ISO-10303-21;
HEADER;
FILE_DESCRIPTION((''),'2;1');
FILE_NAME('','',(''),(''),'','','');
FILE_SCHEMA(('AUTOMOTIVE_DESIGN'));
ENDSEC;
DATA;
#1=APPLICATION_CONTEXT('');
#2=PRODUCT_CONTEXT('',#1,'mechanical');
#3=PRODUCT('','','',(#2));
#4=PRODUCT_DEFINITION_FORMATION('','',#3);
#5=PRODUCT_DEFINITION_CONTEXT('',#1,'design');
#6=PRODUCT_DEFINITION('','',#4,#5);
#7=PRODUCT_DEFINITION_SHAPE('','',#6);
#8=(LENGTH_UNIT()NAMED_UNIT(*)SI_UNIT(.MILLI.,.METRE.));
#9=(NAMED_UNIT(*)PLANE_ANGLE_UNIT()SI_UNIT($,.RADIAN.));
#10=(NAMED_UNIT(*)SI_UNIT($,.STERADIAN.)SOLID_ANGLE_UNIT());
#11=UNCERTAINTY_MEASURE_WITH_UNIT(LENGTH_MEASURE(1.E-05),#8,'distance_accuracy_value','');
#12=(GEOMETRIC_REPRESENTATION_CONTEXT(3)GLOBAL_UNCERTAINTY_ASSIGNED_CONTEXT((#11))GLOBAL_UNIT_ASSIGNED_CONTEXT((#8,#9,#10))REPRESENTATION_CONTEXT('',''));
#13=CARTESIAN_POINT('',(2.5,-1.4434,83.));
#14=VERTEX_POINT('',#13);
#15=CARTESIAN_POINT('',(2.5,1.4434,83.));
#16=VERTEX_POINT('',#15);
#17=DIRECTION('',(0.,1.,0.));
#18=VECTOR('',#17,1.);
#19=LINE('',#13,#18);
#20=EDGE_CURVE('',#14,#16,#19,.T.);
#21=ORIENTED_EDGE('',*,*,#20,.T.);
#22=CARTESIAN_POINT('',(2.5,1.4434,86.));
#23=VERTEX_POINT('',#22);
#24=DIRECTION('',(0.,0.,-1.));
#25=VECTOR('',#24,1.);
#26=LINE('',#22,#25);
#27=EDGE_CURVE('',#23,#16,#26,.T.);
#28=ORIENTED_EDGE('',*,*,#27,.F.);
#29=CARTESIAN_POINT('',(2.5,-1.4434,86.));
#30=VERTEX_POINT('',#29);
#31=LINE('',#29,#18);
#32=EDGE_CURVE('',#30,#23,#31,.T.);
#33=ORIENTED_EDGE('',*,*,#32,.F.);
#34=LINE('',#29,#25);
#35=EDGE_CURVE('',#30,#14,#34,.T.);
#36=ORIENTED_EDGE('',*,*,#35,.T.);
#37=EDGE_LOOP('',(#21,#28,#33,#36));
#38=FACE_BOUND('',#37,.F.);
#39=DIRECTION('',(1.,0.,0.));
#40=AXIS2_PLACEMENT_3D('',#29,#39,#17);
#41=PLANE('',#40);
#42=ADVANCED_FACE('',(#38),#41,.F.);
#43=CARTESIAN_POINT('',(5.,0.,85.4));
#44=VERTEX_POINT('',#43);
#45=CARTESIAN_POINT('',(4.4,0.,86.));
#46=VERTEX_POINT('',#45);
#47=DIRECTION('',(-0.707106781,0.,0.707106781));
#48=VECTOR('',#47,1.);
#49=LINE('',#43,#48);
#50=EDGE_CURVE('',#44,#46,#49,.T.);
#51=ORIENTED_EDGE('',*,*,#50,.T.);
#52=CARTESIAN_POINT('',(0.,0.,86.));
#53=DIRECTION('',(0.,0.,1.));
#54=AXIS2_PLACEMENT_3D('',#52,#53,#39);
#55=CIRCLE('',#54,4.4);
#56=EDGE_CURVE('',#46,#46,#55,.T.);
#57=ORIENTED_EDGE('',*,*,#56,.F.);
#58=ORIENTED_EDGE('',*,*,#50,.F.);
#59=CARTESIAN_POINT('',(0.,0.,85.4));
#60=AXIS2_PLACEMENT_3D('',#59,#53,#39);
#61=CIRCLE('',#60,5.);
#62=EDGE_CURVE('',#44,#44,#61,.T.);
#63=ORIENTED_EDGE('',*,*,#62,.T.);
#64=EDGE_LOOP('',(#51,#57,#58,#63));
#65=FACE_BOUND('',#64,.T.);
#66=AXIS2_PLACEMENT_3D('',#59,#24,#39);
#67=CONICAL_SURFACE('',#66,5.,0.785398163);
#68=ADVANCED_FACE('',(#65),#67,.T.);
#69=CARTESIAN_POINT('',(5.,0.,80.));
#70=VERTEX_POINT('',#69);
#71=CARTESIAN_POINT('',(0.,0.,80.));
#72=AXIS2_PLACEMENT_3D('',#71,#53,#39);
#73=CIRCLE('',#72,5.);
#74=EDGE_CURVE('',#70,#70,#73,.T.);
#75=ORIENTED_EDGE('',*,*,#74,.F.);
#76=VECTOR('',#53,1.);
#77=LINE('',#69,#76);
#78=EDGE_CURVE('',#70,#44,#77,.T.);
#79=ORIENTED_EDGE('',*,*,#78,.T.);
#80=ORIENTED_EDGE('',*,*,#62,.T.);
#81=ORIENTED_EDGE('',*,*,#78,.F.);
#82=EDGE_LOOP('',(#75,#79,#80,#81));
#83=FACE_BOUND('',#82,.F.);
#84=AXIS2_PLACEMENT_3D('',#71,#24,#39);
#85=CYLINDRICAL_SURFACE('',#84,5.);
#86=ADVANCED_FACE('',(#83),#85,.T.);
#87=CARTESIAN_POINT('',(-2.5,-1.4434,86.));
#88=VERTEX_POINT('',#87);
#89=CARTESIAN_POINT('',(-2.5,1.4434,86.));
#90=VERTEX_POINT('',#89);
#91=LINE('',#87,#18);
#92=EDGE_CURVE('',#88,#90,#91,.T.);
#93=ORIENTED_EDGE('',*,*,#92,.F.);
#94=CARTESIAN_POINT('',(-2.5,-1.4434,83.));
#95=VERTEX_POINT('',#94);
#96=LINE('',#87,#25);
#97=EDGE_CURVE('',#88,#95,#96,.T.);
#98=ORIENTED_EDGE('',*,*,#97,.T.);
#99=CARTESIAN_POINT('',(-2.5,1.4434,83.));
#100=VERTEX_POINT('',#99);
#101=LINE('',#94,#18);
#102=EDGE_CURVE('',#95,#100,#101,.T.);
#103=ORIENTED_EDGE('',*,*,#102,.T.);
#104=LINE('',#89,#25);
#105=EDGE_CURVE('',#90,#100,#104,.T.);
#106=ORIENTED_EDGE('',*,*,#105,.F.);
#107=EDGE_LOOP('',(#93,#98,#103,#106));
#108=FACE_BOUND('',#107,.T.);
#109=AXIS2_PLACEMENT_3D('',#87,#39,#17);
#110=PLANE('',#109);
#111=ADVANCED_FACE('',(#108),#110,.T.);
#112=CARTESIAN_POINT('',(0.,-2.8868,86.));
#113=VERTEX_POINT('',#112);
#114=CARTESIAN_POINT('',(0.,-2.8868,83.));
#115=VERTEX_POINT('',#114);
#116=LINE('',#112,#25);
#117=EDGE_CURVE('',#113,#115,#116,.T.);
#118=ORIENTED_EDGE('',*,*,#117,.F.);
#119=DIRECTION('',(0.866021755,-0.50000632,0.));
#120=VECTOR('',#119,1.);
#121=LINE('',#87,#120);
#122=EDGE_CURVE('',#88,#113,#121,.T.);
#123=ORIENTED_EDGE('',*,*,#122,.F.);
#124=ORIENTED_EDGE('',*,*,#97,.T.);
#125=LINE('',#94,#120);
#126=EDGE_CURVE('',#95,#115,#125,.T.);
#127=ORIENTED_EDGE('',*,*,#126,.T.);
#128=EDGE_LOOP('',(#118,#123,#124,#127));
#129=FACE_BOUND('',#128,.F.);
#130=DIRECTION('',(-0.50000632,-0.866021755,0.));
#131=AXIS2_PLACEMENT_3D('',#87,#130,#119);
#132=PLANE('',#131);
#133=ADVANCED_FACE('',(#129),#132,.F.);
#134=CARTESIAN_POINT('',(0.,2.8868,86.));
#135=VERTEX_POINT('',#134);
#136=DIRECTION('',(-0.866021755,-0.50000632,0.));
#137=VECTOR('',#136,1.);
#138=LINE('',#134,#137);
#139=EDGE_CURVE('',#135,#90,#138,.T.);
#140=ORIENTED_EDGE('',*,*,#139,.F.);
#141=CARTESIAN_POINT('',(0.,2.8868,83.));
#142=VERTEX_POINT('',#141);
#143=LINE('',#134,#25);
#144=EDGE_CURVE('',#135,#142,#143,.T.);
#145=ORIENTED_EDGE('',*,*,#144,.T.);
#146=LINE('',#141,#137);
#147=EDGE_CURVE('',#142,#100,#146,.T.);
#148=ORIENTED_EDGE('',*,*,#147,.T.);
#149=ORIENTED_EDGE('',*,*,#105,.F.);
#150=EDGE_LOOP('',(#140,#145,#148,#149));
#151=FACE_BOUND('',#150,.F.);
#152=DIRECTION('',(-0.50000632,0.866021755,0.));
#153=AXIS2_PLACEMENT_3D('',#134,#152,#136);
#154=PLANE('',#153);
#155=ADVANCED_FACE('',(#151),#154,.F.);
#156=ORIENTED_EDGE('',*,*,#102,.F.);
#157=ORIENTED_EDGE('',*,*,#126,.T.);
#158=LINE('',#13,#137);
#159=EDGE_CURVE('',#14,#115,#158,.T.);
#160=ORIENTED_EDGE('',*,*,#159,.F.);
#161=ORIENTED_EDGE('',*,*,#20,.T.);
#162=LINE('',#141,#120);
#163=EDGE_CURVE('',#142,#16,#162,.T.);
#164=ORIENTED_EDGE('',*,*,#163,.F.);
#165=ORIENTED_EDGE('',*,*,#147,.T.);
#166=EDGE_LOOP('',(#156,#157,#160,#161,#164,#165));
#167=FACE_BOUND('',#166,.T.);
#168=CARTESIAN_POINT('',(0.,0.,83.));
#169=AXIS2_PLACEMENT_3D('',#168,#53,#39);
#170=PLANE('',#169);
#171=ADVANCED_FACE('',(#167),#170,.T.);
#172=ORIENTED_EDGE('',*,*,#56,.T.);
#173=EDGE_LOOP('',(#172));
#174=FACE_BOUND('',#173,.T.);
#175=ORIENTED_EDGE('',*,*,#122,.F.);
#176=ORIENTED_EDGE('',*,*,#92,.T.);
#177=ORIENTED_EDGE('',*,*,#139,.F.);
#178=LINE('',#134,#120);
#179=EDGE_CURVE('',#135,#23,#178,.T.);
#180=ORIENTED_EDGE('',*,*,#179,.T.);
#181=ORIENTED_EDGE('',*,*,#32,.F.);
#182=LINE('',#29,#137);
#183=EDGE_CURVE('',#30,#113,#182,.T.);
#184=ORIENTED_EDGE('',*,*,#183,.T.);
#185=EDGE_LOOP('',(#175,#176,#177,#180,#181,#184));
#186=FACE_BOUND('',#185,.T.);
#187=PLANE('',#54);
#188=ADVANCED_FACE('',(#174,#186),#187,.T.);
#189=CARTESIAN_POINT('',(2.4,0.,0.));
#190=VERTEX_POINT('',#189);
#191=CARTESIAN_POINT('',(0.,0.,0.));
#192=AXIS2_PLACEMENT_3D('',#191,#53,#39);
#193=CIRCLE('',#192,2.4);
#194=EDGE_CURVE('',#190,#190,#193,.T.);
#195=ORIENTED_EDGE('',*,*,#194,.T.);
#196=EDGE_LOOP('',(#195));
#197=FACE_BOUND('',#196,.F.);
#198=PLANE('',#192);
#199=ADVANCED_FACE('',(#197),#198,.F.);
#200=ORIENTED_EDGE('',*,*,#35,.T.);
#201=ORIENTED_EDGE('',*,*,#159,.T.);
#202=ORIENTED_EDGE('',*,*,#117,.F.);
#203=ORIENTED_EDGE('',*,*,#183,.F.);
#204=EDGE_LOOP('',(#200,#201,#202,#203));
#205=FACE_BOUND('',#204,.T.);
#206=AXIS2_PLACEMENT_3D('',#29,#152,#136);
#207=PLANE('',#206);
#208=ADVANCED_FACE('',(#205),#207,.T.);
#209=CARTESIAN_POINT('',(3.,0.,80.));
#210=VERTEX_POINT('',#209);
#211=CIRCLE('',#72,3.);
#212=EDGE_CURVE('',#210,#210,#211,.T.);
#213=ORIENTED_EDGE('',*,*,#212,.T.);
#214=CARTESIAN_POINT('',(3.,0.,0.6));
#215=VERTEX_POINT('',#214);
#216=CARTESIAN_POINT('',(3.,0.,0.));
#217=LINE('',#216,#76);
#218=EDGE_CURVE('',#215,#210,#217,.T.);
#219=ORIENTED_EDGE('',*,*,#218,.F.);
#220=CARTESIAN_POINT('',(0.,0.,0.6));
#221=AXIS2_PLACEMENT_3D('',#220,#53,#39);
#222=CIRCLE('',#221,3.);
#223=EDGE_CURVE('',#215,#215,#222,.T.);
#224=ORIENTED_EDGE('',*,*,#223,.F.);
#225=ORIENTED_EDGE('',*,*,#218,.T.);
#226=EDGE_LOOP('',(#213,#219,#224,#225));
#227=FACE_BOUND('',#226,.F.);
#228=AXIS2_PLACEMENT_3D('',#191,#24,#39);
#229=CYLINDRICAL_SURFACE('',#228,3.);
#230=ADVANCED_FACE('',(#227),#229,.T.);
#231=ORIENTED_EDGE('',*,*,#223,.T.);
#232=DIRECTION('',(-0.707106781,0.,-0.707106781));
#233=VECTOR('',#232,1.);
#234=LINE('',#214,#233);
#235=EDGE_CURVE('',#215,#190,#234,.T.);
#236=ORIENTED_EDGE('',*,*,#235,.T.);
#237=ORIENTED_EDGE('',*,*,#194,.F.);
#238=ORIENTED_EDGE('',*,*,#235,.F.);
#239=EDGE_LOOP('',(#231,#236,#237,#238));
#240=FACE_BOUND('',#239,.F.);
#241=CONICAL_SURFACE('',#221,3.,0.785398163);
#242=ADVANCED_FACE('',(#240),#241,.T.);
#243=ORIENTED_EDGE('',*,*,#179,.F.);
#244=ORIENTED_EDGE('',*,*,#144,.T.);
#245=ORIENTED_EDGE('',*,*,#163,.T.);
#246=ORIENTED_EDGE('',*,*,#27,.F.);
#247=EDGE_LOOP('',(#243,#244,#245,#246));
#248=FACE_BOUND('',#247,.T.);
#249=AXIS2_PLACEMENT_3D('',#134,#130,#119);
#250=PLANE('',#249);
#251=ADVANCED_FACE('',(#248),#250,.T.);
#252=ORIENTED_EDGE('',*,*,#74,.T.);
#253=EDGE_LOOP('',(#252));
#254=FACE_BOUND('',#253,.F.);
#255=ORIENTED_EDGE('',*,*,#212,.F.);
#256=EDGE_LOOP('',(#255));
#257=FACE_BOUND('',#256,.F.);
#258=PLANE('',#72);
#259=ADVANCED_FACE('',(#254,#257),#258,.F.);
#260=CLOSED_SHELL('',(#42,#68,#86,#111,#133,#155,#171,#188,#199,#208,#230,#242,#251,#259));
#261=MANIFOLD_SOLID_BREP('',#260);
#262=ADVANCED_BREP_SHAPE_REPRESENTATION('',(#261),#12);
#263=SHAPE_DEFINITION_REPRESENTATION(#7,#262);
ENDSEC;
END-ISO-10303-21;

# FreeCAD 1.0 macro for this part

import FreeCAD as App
import Part
import Sketcher
from FreeCAD import Vector
Q = App.Units.Quantity


def edges_at(feature, points):
    """Names of the edges that pass closest to the given points."""
    edges = feature.Shape.Edges
    near = lambda p: min(range(len(edges)), key=lambda i: edges[i].distToShape(Part.Vertex(*p))[0])
    return sorted({f"Edge{near(p) + 1}" for p in points})


def add_polygon(sketch, points):
    """Adds a closed chain of lines whose ends are joined by coincident constraints."""
    first, n = sketch.GeometryCount, len(points)
    for a, b in zip(points, points[1:] + points[:1]):
        sketch.addGeometry(Part.LineSegment(App.Vector(*a, 0), App.Vector(*b, 0)), False)
    for i in range(n):
        sketch.addConstraint(Sketcher.Constraint("Coincident", first + i, 2, first + (i + 1) % n, 1))

doc = App.newDocument("Part")
params = doc.addObject("Spreadsheet::Sheet", "Params")
for row, (alias, value) in enumerate([
    ("sketch1_diameter", "6 mm"),
    ("pad1_length", "80 mm"),
    ("sketch2_diameter", "10 mm"),
    ("pad2_length", "6 mm"),
    ("pocket1_length", "3 mm"),
    ("chamfer_size", "0.6 mm"),
], start=1):
    params.set(f"A{row}", alias)
    params.set(f"B{row}", "=" + value)
    params.setAlias(f"B{row}", alias)

body = doc.addObject("PartDesign::Body", "Body")

# Sketch on XY plane
sketch1 = body.newObject("Sketcher::SketchObject", "Sketch")
sketch1.AttachmentSupport = (doc.getObject("XY_Plane"), [""])
sketch1.MapMode = "FlatFace"
sketch1.addGeometry(Part.Circle(Vector(0, 0, 0), Vector(0, 0, 1), 3), False)
sketch1.addConstraint(Sketcher.Constraint("Coincident", 0, 3, -1, 1))
sketch1.addConstraint(Sketcher.Constraint("Diameter", 0, Q("6 mm")))
sketch1.setExpression("Constraints[1]", "Params.sketch1_diameter")
pad1 = body.newObject("PartDesign::Pad", "Pad")
pad1.Profile = sketch1
pad1.setExpression("Length", "Params.pad1_length")

# Sketch on XY plane
sketch2 = body.newObject("Sketcher::SketchObject", "Sketch001")
sketch2.AttachmentSupport = (doc.getObject("XY_Plane"), [""])
sketch2.MapMode = "FlatFace"
sketch2.AttachmentOffset = App.Placement(Vector(0, 0, 80), App.Rotation())
sketch2.addGeometry(Part.Circle(Vector(0, 0, 0), Vector(0, 0, 1), 5), False)
sketch2.addConstraint(Sketcher.Constraint("Coincident", 0, 3, -1, 1))
sketch2.addConstraint(Sketcher.Constraint("Diameter", 0, Q("10 mm")))
sketch2.setExpression("Constraints[1]", "Params.sketch2_diameter")
pad2 = body.newObject("PartDesign::Pad", "Pad001")
pad2.Profile = sketch2
pad2.setExpression("Length", "Params.pad2_length")

# Sketch on XY plane
sketch3 = body.newObject("Sketcher::SketchObject", "Sketch002")
sketch3.AttachmentSupport = (doc.getObject("XY_Plane"), [""])
sketch3.MapMode = "FlatFace"
sketch3.AttachmentOffset = App.Placement(Vector(0, 0, 86), App.Rotation())
add_polygon(sketch3, [(2.5, 1.4), (0, 2.9), (-2.5, 1.4), (-2.5, -1.4), (0, -2.9), (2.5, -1.4)])  # lines 0-5
sketch3.addConstraint(Sketcher.Constraint("Vertical", 2))
sketch3.addConstraint(Sketcher.Constraint("Vertical", 5))
sketch3.addConstraint(Sketcher.Constraint("Symmetric", 0, 2, 3, 2, -1, 1))
sketch3.addConstraint(Sketcher.Constraint("Symmetric", 1, 2, 4, 2, -1, 1))
sketch3.addConstraint(Sketcher.Constraint("PointOnObject", 0, 2, -2))
sketch3.addConstraint(Sketcher.Constraint("Parallel", 0, 3))
sketch3.addConstraint(Sketcher.Constraint("Horizontal", 2, 2, 4, 2))
sketch3.addConstraint(Sketcher.Constraint("DistanceX", 2, 2, 4, 2, Q("5 mm")))
sketch3.addConstraint(Sketcher.Constraint("Angle", 0, Q("149.9996 deg")))
sketch3.addConstraint(Sketcher.Constraint("DistanceY", 2, 2, 2, 1, Q("2.8868 mm")))
pocket1 = body.newObject("PartDesign::Pocket", "Pocket")
pocket1.Profile = sketch3
pocket1.setExpression("Length", "Params.pocket1_length")
doc.recompute()

chamfer = body.newObject("PartDesign::Chamfer", "Chamfer")
chamfer.Base = (pocket1, edges_at(pocket1, [(-5, 0, 86), (-3, 0, 0)]))
chamfer.setExpression("Size", "Params.chamfer_size")

doc.recompute()
